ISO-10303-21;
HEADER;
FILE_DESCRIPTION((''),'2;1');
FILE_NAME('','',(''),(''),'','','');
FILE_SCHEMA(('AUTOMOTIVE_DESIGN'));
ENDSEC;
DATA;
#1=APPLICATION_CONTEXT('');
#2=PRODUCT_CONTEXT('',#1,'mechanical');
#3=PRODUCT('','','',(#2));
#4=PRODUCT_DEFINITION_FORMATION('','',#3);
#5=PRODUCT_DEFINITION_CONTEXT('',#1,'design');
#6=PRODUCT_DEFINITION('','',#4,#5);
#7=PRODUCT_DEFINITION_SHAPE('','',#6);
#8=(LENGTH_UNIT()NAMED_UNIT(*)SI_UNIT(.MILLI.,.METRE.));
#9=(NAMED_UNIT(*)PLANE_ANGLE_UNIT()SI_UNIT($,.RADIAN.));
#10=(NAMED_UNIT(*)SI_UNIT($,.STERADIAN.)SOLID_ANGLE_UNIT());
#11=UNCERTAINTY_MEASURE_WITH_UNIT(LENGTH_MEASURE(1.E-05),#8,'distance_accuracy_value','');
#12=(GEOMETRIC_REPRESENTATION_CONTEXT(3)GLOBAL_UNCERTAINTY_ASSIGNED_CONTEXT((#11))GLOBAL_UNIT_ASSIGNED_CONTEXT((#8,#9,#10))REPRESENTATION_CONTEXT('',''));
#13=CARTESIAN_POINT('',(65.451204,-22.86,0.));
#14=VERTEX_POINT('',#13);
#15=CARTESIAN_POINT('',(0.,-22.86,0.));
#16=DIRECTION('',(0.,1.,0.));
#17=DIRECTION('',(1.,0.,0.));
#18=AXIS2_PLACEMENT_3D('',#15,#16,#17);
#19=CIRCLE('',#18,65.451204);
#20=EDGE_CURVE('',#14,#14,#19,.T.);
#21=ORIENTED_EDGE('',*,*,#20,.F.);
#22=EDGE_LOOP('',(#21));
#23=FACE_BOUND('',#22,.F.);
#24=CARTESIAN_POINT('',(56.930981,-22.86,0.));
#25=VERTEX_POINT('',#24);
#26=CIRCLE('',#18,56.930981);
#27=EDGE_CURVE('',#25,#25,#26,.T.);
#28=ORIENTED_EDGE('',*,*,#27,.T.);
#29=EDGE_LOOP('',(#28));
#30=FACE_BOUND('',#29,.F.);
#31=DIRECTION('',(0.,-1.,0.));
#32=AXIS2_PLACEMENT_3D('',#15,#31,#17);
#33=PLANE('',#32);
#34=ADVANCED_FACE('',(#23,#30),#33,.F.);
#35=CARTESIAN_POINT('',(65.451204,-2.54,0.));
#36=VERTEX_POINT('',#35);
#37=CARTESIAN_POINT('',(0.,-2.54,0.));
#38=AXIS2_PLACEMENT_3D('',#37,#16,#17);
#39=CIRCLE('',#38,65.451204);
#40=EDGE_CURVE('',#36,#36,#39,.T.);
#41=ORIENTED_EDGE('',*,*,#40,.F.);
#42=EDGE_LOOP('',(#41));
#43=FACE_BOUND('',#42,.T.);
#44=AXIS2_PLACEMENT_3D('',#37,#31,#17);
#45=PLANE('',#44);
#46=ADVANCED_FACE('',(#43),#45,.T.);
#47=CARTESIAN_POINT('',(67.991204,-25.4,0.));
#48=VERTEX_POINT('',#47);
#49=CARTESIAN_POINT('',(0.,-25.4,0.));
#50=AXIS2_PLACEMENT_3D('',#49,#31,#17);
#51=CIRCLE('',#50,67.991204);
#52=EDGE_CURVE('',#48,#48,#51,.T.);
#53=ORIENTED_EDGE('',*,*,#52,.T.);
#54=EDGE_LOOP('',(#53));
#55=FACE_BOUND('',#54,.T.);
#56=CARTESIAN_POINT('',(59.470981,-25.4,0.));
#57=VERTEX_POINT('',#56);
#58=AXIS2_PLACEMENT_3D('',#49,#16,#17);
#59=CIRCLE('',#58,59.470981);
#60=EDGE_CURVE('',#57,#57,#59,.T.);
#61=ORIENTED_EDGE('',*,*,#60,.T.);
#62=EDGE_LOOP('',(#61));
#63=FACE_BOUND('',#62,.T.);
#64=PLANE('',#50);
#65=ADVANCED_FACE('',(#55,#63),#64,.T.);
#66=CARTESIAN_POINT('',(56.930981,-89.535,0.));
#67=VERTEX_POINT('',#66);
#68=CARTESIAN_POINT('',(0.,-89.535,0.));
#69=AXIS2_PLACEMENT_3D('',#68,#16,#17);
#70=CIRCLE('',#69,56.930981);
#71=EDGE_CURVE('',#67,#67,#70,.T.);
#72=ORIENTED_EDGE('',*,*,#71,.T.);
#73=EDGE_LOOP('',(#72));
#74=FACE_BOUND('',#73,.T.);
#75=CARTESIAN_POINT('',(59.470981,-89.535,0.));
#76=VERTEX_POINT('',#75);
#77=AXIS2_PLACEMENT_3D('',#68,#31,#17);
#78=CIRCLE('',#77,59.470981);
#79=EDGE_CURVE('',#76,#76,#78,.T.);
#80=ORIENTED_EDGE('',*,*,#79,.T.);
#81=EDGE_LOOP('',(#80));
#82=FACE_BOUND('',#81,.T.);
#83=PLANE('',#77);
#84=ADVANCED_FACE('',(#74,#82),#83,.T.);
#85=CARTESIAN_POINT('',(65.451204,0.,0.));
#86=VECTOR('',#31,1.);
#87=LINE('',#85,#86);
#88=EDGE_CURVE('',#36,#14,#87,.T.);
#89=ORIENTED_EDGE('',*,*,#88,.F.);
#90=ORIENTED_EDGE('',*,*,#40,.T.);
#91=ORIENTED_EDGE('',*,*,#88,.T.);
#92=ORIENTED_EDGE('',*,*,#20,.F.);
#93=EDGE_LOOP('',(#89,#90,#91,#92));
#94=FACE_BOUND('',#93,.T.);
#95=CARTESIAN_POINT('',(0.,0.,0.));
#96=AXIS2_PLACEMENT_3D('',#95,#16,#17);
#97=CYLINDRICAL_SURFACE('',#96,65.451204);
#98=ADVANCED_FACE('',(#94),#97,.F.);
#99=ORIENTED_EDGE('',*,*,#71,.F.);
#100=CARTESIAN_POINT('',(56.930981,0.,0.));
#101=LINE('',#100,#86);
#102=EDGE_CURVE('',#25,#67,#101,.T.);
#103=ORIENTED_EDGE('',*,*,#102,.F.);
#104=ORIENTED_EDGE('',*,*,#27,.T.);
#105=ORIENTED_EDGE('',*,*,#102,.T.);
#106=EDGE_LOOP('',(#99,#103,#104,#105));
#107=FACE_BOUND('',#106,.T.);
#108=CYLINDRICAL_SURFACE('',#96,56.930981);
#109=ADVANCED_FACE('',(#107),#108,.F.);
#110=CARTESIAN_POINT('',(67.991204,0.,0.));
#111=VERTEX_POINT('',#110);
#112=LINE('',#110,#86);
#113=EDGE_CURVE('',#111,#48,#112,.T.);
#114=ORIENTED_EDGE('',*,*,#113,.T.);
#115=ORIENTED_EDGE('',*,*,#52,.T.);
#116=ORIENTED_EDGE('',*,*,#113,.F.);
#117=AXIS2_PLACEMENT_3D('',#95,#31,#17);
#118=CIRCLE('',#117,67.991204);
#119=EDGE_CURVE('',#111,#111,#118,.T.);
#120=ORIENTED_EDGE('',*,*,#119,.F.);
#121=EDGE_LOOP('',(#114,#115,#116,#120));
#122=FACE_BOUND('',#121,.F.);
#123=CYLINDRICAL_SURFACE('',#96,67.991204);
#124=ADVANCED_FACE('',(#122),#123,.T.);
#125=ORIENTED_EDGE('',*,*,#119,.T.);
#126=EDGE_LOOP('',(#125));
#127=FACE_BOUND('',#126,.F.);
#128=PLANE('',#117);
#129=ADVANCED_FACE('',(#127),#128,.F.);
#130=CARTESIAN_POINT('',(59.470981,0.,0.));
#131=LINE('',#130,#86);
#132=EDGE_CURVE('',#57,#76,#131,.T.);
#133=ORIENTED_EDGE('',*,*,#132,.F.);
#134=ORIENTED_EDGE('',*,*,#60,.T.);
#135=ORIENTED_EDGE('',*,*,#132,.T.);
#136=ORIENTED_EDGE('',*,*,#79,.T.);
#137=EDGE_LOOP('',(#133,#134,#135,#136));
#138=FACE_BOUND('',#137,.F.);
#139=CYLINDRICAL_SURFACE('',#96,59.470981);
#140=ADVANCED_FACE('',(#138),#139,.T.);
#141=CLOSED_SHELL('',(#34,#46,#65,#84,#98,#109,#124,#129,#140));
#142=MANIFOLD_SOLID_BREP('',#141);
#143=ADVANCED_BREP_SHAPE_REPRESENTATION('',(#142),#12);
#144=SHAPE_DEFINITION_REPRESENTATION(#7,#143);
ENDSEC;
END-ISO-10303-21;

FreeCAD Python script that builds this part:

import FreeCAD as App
import Part
import Sketcher
Q = App.Units.Quantity


def faces_at(feature, points):
    """Names of the faces that lie closest to the given points."""
    faces = feature.Shape.Faces
    near = lambda p: min(range(len(faces)), key=lambda i: faces[i].distToShape(Part.Vertex(*p))[0])
    return sorted({f"Face{near(p) + 1}" for p in points})

doc = App.newDocument("Part")
body = doc.addObject("PartDesign::Body", "Body")

# Sketch on XZ plane
sketch1 = body.newObject("Sketcher::SketchObject", "Sketch")
sketch1.AttachmentSupport = (doc.getObject("XZ_Plane"), [""])
sketch1.MapMode = "FlatFace"
sketch1.addGeometry(Part.Circle(App.Vector(0, 0, 0), App.Vector(0, 0, 1), 67.991204), False)
sketch1.addConstraint([
    Sketcher.Constraint("Coincident", 0, 3, -1, 1),
    Sketcher.Constraint("Diameter", 0, 135.982408),
])
pad1 = body.newObject("PartDesign::Pad", "Pad")
pad1.Profile = sketch1
pad1.Length = Q("1 in")

# Sketch on XZ plane
sketch2 = body.newObject("Sketcher::SketchObject", "Sketch001")
sketch2.AttachmentSupport = (doc.getObject("XZ_Plane"), [""])
sketch2.MapMode = "FlatFace"
sketch2.addGeometry(Part.Circle(App.Vector(0, 0, 0), App.Vector(0, 0, 1), 59.470981), False)
sketch2.addConstraint([
    Sketcher.Constraint("Coincident", 0, 3, -1, 1),
    Sketcher.Constraint("Diameter", 0, 118.941962),
])
pad2 = body.newObject("PartDesign::Pad", "Pad001")
pad2.Profile = sketch2
pad2.Length = Q("3.525 in")
doc.recompute()

thickness = body.newObject("PartDesign::Thickness", "Thickness")
thickness.Base = (pad2, faces_at(pad2, [(0, -89.535, 0)]))
thickness.Value = Q("0.1 in")
thickness.Reversed = True
thickness.Join = "Intersection"

doc.recompute()
